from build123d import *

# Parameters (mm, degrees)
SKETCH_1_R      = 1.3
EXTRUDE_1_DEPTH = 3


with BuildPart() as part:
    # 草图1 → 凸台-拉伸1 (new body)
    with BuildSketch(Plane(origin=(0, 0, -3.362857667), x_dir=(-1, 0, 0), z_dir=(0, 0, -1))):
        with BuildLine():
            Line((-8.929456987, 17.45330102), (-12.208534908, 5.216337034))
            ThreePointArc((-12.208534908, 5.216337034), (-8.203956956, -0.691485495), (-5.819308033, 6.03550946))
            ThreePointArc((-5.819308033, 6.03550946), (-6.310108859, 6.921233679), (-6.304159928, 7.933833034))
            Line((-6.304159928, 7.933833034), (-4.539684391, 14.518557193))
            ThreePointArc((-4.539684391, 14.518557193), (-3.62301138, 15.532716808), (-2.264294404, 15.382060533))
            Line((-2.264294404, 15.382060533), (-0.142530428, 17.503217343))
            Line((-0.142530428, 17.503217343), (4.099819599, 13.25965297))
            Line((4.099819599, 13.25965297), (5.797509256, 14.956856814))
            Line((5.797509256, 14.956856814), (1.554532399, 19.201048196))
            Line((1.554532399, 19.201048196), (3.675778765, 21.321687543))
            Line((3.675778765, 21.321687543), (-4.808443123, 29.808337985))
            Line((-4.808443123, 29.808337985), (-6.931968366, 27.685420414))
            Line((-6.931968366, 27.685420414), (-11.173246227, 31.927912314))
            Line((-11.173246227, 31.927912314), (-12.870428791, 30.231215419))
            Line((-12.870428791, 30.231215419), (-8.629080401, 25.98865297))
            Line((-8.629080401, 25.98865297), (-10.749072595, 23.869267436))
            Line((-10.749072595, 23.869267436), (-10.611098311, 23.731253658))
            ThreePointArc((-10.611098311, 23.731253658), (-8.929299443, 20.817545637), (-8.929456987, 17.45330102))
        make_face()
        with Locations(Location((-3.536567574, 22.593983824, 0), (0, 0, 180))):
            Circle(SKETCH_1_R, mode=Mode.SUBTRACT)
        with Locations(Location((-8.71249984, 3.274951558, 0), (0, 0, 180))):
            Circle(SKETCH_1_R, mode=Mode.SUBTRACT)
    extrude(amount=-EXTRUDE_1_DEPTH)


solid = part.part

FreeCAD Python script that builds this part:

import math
import FreeCAD as App
import Part
import Sketcher

V = App.Vector
Q = App.Units.Quantity

doc = App.newDocument("Part")
body = doc.addObject("PartDesign::Body", "Body")

# Sketch on XY plane
sketch1 = body.newObject("Sketcher::SketchObject", "Sketch")
sketch1.AttachmentSupport = (doc.getObject("XY_Plane"), [""])
sketch1.MapMode = "FlatFace"
sketch1.AttachmentOffset = App.Placement(V(0, 0, -3.362858), App.Rotation())
sketch1.addGeometry([
    Part.LineSegment(V(8.929457, 17.453301, 0), V(12.208535, 5.216337, 0)),  # 0
    Part.ArcOfCircle(Part.Circle(V(8.7125, 3.274952, 0), V(0, 0, 1), 3.998905), math.radians(136.343881), math.radians(389.04388)),  # 1
    Part.ArcOfCircle(Part.Circle(V(4.372316, 7.416166, 0), V(0, 0, 1), 2), math.radians(-43.656119), math.radians(15.000845)),  # 2
    Part.LineSegment(V(6.30416, 7.933833, 0), V(4.539684, 14.518557, 0)),  # 3
    Part.ArcOfCircle(Part.Circle(V(3.090801, 14.130307, 0), V(0, 0, 1), 1.5), math.radians(15.000844), math.radians(123.435963)),  # 4
    Part.LineSegment(V(2.264294, 15.382061, 0), V(0.14253, 17.503217, 0)),  # 5
    Part.LineSegment(V(0.14253, 17.503217, 0), V(-4.09982, 13.259653, 0)),  # 6
    Part.LineSegment(V(-4.09982, 13.259653, 0), V(-5.797509, 14.956857, 0)),  # 7
    Part.LineSegment(V(-5.797509, 14.956857, 0), V(-1.554532, 19.201048, 0)),  # 8
    Part.LineSegment(V(-1.554532, 19.201048, 0), V(-3.675779, 21.321688, 0)),  # 9
    Part.LineSegment(V(-3.675779, 21.321688, 0), V(4.808443, 29.808338, 0)),  # 10
    Part.LineSegment(V(4.808443, 29.808338, 0), V(6.931968, 27.68542, 0)),  # 11
    Part.LineSegment(V(6.931968, 27.68542, 0), V(11.173246, 31.927912, 0)),  # 12
    Part.LineSegment(V(11.173246, 31.927912, 0), V(12.870429, 30.231215, 0)),  # 13
    Part.LineSegment(V(12.870429, 30.231215, 0), V(8.62908, 25.988653, 0)),  # 14
    Part.LineSegment(V(8.62908, 25.988653, 0), V(10.749073, 23.869267, 0)),  # 15
    Part.LineSegment(V(10.749073, 23.869267, 0), V(10.611098, 23.731254, 0)),  # 16
    Part.ArcOfCircle(Part.Circle(V(15.20795, 19.135717, 0), V(0, 0, 1), 6.5), math.radians(135.008199), math.radians(195.000844)),  # 17
    Part.Circle(V(8.7125, 3.274952, 0), V(0, 0, 1), 1.3),  # 18
    Part.Circle(V(3.536568, 22.593984, 0), V(0, 0, 1), 1.3),  # 19
], False)
sketch1.addConstraint([
    Sketcher.Constraint("Coincident", 0, 2, 1, 2),
    Sketcher.Constraint("Coincident", 1, 1, 2, 1),
    Sketcher.Constraint("Coincident", 2, 2, 3, 1),
    Sketcher.Constraint("Coincident", 3, 2, 4, 1),
    Sketcher.Constraint("Coincident", 4, 2, 5, 1),
    Sketcher.Constraint("Coincident", 5, 2, 6, 1),
    Sketcher.Constraint("Coincident", 6, 2, 7, 1),
    Sketcher.Constraint("Coincident", 7, 2, 8, 1),
    Sketcher.Constraint("Coincident", 8, 2, 9, 1),
    Sketcher.Constraint("Coincident", 9, 2, 10, 1),
    Sketcher.Constraint("Coincident", 10, 2, 11, 1),
    Sketcher.Constraint("Coincident", 11, 2, 12, 1),
    Sketcher.Constraint("Coincident", 12, 2, 13, 1),
    Sketcher.Constraint("Coincident", 13, 2, 14, 1),
    Sketcher.Constraint("Coincident", 14, 2, 15, 1),
    Sketcher.Constraint("Coincident", 15, 2, 16, 1),
    Sketcher.Constraint("Coincident", 16, 2, 17, 1),
    Sketcher.Constraint("Coincident", 17, 2, 0, 1),
    Sketcher.Constraint("Coincident", 18, 3, 1, 3),
    Sketcher.Constraint("Radius", 2, Q("2 mm")),
    Sketcher.Constraint("Diameter", 18, Q("2.6 mm")),
    Sketcher.Constraint("Diameter", 19, Q("2.6 mm")),
    Sketcher.Constraint("Radius", 4, Q("1.5 mm")),
    Sketcher.Constraint("Radius", 17, Q("6.5 mm")),
    Sketcher.Constraint("Radius", 1, Q("3.998905 mm")),
    Sketcher.Constraint("Distance", 5, Q("3.000198 mm")),
    Sketcher.Constraint("DistanceX", -1, 1, 1, 3, Q("8.7125 mm")),
    Sketcher.Constraint("DistanceX", -1, 1, 4, 3, Q("3.090801 mm")),
    Sketcher.Constraint("DistanceX", -1, 1, 16, 2, Q("10.611098 mm")),
    Sketcher.Constraint("DistanceY", -1, 1, 17, 2, Q("17.453301 mm")),
    Sketcher.Constraint("DistanceY", 3, 2, 7, 2, Q("0.4383 mm")),
    Sketcher.Constraint("DistanceX", 8, 2, 19, 3, Q("5.0911 mm")),
    Sketcher.Constraint("DistanceX", 19, 3, 11, 2, Q("3.395401 mm")),
    Sketcher.Constraint("DistanceY", 17, 3, 13, 2, Q("11.095498 mm")),
    Sketcher.Constraint("DistanceY", 16, 2, 14, 2, Q("2.257399 mm")),
    Sketcher.Constraint("Distance", 10, Q("12.000219 mm")),
    Sketcher.Constraint("Distance", 11, Q("3.002689 mm")),
    Sketcher.Constraint("Distance", 12, Q("5.998931 mm")),
    Sketcher.Constraint("Distance", 14, Q("5.999031 mm")),
    Sketcher.Constraint("DistanceY", -1, 1, 1, 3, Q("3.274952 mm")),
    Sketcher.Constraint("DistanceX", -1, 1, 17, 3, Q("15.20795 mm")),
    Sketcher.Constraint("DistanceX", -1, 1, 1, 1, Q("5.819308 mm")),
    Sketcher.Constraint("DistanceX", -1, 1, 2, 2, Q("6.30416 mm")),
    Sketcher.Constraint("DistanceY", -1, 1, 4, 2, Q("15.382061 mm")),
    Sketcher.Constraint("DistanceX", -1, 1, 5, 2, Q("0.14253 mm")),
    Sketcher.Constraint("DistanceX", 6, 2, -1, 1, Q("4.09982 mm")),
    Sketcher.Constraint("DistanceX", 7, 2, -1, 1, Q("5.797509 mm")),
    Sketcher.Constraint("DistanceY", -1, 1, 8, 2, Q("19.201048 mm")),
    Sketcher.Constraint("DistanceX", 9, 2, -1, 1, Q("3.675779 mm")),
    Sketcher.Constraint("DistanceX", -1, 1, 11, 2, Q("6.931968 mm")),
    Sketcher.Constraint("DistanceY", -1, 1, 11, 2, Q("27.68542 mm")),
    Sketcher.Constraint("DistanceX", -1, 1, 13, 2, Q("12.870429 mm")),
    Sketcher.Constraint("DistanceY", 2, 3, 4, 3, Q("6.714141 mm")),
    Sketcher.Constraint("DistanceY", 4, 3, 17, 3, Q("5.00541 mm")),
    Sketcher.Constraint("DistanceX", 19, 3, 2, 3, Q("0.835748 mm")),
    Sketcher.Constraint("DistanceX", 2, 3, 0, 2, Q("7.836219 mm")),
    Sketcher.Constraint("DistanceY", 4, 3, 3, 2, Q("0.38825 mm")),
    Sketcher.Constraint("DistanceY", 8, 2, 9, 2, Q("2.120639 mm")),
    Sketcher.Constraint("DistanceY", 11, 2, 12, 2, Q("4.242492 mm")),
    Sketcher.Constraint("DistanceY", 19, 3, 12, 2, Q("9.333928 mm")),
    Sketcher.Constraint("DistanceY", 17, 3, 15, 2, Q("4.73355 mm")),
    Sketcher.Constraint("Distance", 6, Q("6.000448 mm")),
    Sketcher.Constraint("Distance", 15, Q("2.997693 mm")),
])
pad1 = body.newObject("PartDesign::Pad", "Pad")
pad1.Profile = sketch1
pad1.Length = 3

doc.recompute()
